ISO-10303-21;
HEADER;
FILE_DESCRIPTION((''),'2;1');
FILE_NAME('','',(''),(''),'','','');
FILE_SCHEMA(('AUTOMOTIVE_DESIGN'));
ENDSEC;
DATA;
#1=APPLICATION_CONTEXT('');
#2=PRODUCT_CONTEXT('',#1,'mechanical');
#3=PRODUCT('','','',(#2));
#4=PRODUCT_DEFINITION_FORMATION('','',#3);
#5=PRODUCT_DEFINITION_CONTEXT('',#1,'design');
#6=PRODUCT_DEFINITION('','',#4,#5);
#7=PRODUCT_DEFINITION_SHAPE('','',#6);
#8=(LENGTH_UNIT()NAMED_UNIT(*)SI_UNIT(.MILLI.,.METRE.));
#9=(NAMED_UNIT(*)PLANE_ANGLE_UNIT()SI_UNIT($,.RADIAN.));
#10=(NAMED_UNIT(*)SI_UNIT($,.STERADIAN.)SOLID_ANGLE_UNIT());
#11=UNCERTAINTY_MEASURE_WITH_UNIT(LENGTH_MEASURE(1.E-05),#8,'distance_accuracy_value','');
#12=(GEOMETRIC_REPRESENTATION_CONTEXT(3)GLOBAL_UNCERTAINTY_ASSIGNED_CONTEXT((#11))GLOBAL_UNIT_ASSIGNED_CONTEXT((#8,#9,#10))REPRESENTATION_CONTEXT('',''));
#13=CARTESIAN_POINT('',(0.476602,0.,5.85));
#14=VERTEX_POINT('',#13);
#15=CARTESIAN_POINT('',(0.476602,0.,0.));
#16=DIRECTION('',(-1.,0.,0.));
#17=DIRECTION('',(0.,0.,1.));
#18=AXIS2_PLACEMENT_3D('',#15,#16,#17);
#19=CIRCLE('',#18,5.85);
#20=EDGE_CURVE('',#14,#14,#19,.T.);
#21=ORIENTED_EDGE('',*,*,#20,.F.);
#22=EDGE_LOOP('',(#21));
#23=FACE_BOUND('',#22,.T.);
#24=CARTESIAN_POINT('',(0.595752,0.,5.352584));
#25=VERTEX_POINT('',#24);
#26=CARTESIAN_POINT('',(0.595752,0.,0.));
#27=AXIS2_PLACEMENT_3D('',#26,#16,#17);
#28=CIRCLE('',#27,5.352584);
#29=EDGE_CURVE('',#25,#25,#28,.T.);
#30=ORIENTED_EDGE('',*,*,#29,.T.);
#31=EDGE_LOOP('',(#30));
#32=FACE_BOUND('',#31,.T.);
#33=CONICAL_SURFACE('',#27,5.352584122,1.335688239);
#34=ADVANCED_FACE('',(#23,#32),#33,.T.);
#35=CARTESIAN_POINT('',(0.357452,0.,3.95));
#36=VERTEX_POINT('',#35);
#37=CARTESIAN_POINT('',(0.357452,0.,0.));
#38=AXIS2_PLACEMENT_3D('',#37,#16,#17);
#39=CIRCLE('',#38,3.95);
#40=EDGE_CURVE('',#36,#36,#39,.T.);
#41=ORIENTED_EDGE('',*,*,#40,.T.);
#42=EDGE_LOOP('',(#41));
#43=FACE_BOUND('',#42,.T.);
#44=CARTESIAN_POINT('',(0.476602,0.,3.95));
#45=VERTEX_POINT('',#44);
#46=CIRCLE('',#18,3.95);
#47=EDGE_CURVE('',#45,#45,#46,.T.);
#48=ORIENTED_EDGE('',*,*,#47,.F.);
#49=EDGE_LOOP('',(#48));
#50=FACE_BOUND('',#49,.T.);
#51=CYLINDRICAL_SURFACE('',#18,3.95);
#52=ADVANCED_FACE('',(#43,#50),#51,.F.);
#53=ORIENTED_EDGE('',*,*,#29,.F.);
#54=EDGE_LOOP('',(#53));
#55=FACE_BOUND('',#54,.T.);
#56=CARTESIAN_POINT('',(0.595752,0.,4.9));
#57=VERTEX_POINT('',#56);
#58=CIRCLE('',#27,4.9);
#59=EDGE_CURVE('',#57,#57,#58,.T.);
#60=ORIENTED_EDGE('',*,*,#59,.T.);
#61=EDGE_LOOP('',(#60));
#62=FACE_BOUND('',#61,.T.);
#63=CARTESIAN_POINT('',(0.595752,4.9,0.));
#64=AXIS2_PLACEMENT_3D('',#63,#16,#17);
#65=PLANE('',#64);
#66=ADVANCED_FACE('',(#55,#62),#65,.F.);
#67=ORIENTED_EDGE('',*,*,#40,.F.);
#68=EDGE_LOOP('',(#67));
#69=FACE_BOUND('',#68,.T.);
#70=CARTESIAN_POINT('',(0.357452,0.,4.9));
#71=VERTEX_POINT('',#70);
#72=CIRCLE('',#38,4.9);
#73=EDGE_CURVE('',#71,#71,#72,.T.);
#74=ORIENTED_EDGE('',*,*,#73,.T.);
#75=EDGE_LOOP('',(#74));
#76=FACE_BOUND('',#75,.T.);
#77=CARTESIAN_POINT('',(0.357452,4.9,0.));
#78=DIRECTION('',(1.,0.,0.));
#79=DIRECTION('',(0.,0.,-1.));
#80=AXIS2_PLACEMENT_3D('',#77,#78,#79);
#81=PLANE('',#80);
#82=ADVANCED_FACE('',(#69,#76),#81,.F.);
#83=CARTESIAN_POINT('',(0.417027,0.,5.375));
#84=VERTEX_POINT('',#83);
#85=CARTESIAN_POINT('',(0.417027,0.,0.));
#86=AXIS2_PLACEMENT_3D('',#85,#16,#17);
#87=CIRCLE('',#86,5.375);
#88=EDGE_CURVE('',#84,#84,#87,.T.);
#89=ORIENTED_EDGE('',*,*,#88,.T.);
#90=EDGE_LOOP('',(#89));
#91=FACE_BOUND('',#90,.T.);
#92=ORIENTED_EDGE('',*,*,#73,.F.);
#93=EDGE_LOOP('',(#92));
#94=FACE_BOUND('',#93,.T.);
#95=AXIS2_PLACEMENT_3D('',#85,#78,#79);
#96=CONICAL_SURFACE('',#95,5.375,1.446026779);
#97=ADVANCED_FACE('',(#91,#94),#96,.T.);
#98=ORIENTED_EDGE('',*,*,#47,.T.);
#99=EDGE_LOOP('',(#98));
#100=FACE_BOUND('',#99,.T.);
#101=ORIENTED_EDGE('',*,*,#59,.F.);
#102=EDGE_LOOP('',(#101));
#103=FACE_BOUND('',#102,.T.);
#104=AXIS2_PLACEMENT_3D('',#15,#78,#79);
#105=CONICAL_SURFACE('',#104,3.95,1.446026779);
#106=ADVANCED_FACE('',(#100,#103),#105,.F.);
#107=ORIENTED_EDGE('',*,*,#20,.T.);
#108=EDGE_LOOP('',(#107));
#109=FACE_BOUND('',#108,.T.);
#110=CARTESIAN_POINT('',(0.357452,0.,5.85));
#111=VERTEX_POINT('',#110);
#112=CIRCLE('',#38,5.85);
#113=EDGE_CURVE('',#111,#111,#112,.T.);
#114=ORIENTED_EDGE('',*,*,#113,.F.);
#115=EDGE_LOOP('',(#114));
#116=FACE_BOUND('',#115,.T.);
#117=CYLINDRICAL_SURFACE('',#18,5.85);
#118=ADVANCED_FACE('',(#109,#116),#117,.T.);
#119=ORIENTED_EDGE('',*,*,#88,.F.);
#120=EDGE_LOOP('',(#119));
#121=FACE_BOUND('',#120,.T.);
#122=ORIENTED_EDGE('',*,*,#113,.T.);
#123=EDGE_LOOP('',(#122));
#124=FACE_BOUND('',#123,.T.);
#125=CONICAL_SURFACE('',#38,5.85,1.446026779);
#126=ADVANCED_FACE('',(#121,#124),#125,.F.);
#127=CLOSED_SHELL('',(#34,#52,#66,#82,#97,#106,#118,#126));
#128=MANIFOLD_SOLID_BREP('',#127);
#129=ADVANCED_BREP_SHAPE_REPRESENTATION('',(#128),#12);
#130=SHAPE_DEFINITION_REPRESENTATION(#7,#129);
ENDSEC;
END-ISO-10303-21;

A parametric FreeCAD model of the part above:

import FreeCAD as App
import Part
import Sketcher
Q = App.Units.Quantity


def add_polygon(sketch, points):
    """Adds a closed chain of lines whose ends are joined by coincident constraints."""
    first, n = sketch.GeometryCount, len(points)
    for a, b in zip(points, points[1:] + points[:1]):
        sketch.addGeometry(Part.LineSegment(App.Vector(*a, 0), App.Vector(*b, 0)), False)
    for i in range(n):
        sketch.addConstraint(Sketcher.Constraint("Coincident", first + i, 2, first + (i + 1) % n, 1))

doc = App.newDocument("Part")
body = doc.addObject("PartDesign::Body", "Body")

# Sketch on XY plane
sketch1 = body.newObject("Sketcher::SketchObject", "Sketch")
sketch1.AttachmentSupport = (doc.getObject("XY_Plane"), [""])
sketch1.MapMode = "FlatFace"
add_polygon(sketch1, [(0.357452, 5.85), (0.417027, 5.375), (0.357452, 4.9), (0.357452, 3.95), (0.476602, 3.95), (0.595752, 4.9), (0.595752, 5.352584), (0.476602, 5.85)])  # lines 0-7
sketch1.addConstraint([
    Sketcher.Constraint("Vertical", 2),
    Sketcher.Constraint("Horizontal", 3),
    Sketcher.Constraint("Vertical", 5),
    Sketcher.Constraint("Horizontal", 7),
    Sketcher.Constraint("Parallel", 1, 4),
    Sketcher.Constraint("Horizontal", 1, 2, 4, 2),
    Sketcher.Constraint("Vertical", 3, 2, 6, 2),
    Sketcher.Constraint("Vertical", 2, 2, 7, 2),
    Sketcher.Constraint("Equal", 0, 1),
    Sketcher.Constraint("DistanceY", 2, 2, 2, 1, Q("0.95 mm")),
    Sketcher.Constraint("DistanceY", -1, 1, 1, 2, Q("4.9 mm")),
    Sketcher.Constraint("DistanceY", 3, 2, 6, 2, Q("1.9 mm")),
    Sketcher.Constraint("DistanceX", 3, 1, 3, 2, Q("0.11915 mm")),
    Sketcher.Constraint("DistanceX", 1, 2, 4, 2, Q("0.2383 mm")),
    Sketcher.Constraint("DistanceY", 5, 1, 5, 2, Q("0.452584 mm")),
    Sketcher.Constraint("DistanceX", -1, 1, 4, 2, Q("0.595752 mm")),
])
revolution = body.newObject("PartDesign::Revolution", "Revolution")
revolution.Profile = sketch1
revolution.ReferenceAxis = (sketch1, ["H_Axis"])
revolution.Angle = 360

doc.recompute()
